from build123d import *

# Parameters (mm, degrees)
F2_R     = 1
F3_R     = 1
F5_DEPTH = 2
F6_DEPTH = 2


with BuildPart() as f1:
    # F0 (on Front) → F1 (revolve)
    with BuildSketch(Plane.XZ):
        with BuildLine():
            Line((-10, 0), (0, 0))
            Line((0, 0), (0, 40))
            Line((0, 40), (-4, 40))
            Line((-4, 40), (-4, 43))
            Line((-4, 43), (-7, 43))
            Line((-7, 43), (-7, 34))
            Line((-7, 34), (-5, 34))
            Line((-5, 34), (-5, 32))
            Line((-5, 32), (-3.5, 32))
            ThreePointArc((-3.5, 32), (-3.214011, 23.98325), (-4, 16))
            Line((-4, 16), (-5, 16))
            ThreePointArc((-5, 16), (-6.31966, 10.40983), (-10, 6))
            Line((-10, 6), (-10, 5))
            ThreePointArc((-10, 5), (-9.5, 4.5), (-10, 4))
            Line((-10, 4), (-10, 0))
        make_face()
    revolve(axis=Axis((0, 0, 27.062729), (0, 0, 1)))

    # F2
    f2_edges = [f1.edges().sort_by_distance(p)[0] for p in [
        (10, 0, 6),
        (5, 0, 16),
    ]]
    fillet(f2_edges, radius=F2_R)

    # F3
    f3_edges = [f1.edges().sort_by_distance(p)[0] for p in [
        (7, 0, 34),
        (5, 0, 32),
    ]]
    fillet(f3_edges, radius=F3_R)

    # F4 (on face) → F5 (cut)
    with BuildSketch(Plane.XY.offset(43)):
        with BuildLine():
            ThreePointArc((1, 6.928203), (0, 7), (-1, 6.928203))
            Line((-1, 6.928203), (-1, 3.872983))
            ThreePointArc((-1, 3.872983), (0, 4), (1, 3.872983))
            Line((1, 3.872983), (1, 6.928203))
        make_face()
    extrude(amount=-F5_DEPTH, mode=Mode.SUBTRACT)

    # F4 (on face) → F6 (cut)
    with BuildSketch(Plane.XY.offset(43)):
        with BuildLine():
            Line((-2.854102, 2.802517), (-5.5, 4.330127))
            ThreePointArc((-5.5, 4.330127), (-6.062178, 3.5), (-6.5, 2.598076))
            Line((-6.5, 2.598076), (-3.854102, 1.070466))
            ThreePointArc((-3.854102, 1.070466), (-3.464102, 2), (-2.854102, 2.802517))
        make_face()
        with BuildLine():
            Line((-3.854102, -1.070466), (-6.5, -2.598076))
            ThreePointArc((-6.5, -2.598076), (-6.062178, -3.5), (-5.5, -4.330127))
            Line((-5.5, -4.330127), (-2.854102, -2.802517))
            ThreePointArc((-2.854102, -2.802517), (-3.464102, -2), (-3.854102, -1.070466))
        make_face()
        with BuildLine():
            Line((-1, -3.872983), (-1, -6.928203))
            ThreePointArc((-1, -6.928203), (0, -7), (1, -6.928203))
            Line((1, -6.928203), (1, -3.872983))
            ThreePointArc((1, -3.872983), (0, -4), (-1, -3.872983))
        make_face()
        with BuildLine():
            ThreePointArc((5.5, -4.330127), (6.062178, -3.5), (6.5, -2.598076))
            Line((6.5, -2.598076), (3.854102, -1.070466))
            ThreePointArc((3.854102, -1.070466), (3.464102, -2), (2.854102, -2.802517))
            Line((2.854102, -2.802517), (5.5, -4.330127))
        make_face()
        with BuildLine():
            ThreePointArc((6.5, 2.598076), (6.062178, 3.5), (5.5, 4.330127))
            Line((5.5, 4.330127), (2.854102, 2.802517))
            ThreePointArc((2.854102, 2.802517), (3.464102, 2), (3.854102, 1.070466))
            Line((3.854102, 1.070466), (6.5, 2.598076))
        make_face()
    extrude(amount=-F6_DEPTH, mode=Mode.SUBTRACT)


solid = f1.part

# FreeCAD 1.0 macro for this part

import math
import FreeCAD as App
import Part
import Sketcher
Q = App.Units.Quantity


def edges_at(feature, points):
    """Names of the edges that pass closest to the given points."""
    edges = feature.Shape.Edges
    near = lambda p: min(range(len(edges)), key=lambda i: edges[i].distToShape(Part.Vertex(*p))[0])
    return sorted({f"Edge{near(p) + 1}" for p in points})

doc = App.newDocument("Part")
body = doc.addObject("PartDesign::Body", "Body")

sketch1 = doc.addObject("Sketcher::SketchObject", "Sketch")
body.addObject(sketch1)
sketch1.AttachmentSupport = (doc.XZ_Plane, [""])
sketch1.MapMode = "FlatFace"
sketch1.addGeometry(Part.LineSegment(App.Vector(-10, 0, 0), App.Vector(0, 0, 0)), False)
sketch1.addGeometry(Part.LineSegment(App.Vector(0, 0, 0), App.Vector(0, 40, 0)), False)
sketch1.addGeometry(Part.LineSegment(App.Vector(0, 40, 0), App.Vector(-4, 40, 0)), False)
sketch1.addGeometry(Part.LineSegment(App.Vector(-4, 40, 0), App.Vector(-4, 43, 0)), False)
sketch1.addGeometry(Part.LineSegment(App.Vector(-4, 43, 0), App.Vector(-7, 43, 0)), False)
sketch1.addGeometry(Part.LineSegment(App.Vector(-7, 43, 0), App.Vector(-7, 34, 0)), False)
sketch1.addGeometry(Part.LineSegment(App.Vector(-7, 34, 0), App.Vector(-5, 34, 0)), False)
sketch1.addGeometry(Part.LineSegment(App.Vector(-5, 34, 0), App.Vector(-5, 32, 0)), False)
sketch1.addGeometry(Part.LineSegment(App.Vector(-5, 32, 0), App.Vector(-3.5, 32, 0)), False)
sketch1.addGeometry(Part.ArcOfCircle(Part.Circle(App.Vector(-63.2, 25.9, 0), App.Vector(0, 0, 1), 60), math.radians(-9.46), math.radians(5.88)), False)
sketch1.addGeometry(Part.LineSegment(App.Vector(-4, 16, 0), App.Vector(-5, 16, 0)), False)
sketch1.addGeometry(Part.ArcOfCircle(Part.Circle(App.Vector(-17.5, 16, 0), App.Vector(0, 0, 1), 12.5), math.radians(-53), math.radians(0)), False)
sketch1.addGeometry(Part.LineSegment(App.Vector(-10, 6, 0), App.Vector(-10, 5, 0)), False)
sketch1.addGeometry(Part.ArcOfCircle(Part.Circle(App.Vector(-10, 4.5, 0), App.Vector(0, 0, 1), 0.5), math.radians(-90), math.radians(90)), False)
sketch1.addGeometry(Part.LineSegment(App.Vector(-10, 4, 0), App.Vector(-10, 0, 0)), False)
sketch1.addConstraint(Sketcher.Constraint("Coincident", 0, 2, 1, 1))
sketch1.addConstraint(Sketcher.Constraint("Coincident", 1, 2, 2, 1))
sketch1.addConstraint(Sketcher.Constraint("Coincident", 2, 2, 3, 1))
sketch1.addConstraint(Sketcher.Constraint("Coincident", 3, 2, 4, 1))
sketch1.addConstraint(Sketcher.Constraint("Coincident", 4, 2, 5, 1))
sketch1.addConstraint(Sketcher.Constraint("Coincident", 5, 2, 6, 1))
sketch1.addConstraint(Sketcher.Constraint("Coincident", 6, 2, 7, 1))
sketch1.addConstraint(Sketcher.Constraint("Coincident", 7, 2, 8, 1))
sketch1.addConstraint(Sketcher.Constraint("Coincident", 8, 2, 9, 2))
sketch1.addConstraint(Sketcher.Constraint("Coincident", 9, 1, 10, 1))
sketch1.addConstraint(Sketcher.Constraint("Coincident", 10, 2, 11, 2))
sketch1.addConstraint(Sketcher.Constraint("Coincident", 11, 1, 12, 1))
sketch1.addConstraint(Sketcher.Constraint("Coincident", 12, 2, 13, 2))
sketch1.addConstraint(Sketcher.Constraint("Coincident", 13, 1, 14, 1))
sketch1.addConstraint(Sketcher.Constraint("Coincident", 14, 2, 0, 1))
sketch1.addConstraint(Sketcher.Constraint("Horizontal", 0))
sketch1.addConstraint(Sketcher.Constraint("Vertical", 1))
sketch1.addConstraint(Sketcher.Constraint("Horizontal", 2))
sketch1.addConstraint(Sketcher.Constraint("Vertical", 3))
sketch1.addConstraint(Sketcher.Constraint("Horizontal", 4))
sketch1.addConstraint(Sketcher.Constraint("Vertical", 5))
sketch1.addConstraint(Sketcher.Constraint("Horizontal", 6))
sketch1.addConstraint(Sketcher.Constraint("Vertical", 7))
sketch1.addConstraint(Sketcher.Constraint("Horizontal", 8))
sketch1.addConstraint(Sketcher.Constraint("Horizontal", 10))
sketch1.addConstraint(Sketcher.Constraint("Vertical", 12))
sketch1.addConstraint(Sketcher.Constraint("Vertical", 14))
sketch1.addConstraint(Sketcher.Constraint("Coincident", 0, 2, -1, 1))
sketch1.addConstraint(Sketcher.Constraint("Horizontal", 11, 3, 9, 1))
sketch1.addConstraint(Sketcher.Constraint("Vertical", 3, 2, 9, 1))
sketch1.addConstraint(Sketcher.Constraint("Vertical", 7, 2, 10, 2))
sketch1.addConstraint(Sketcher.Constraint("Vertical", 13, 3, 11, 1))
sketch1.addConstraint(Sketcher.Constraint("Vertical", 12, 2, 13, 1))
sketch1.addConstraint(Sketcher.Constraint("Equal", 4, 3))
sketch1.addConstraint(Sketcher.Constraint("Equal", 6, 7))
sketch1.addConstraint(Sketcher.Constraint("Equal", 10, 12))
sketch1.addConstraint(Sketcher.Constraint("Equal", 2, 14))
sketch1.addConstraint(Sketcher.Constraint("Radius", 11, 12.499999))
sketch1.addConstraint(Sketcher.Constraint("Radius", 13, 0.5))
sketch1.addConstraint(Sketcher.Constraint("DistanceX", 0, 1, 0, 2, 10.0))
sketch1.addConstraint(Sketcher.Constraint("DistanceX", 2, 2, 2, 1, 4.0))
sketch1.addConstraint(Sketcher.Constraint("DistanceX", 4, 2, 4, 1, 3.0))
sketch1.addConstraint(Sketcher.Constraint("DistanceX", 6, 1, 6, 2, 2.0))
sketch1.addConstraint(Sketcher.Constraint("DistanceY", 1, 1, 1, 2, 40.0))
sketch1.addConstraint(Sketcher.Constraint("DistanceY", 5, 2, 5, 1, 9.0))
sketch1.addConstraint(Sketcher.Constraint("DistanceX", 8, 1, 8, 2, 1.5))
sketch1.addConstraint(Sketcher.Constraint("Radius", 9, 59.999987))
revolution = doc.addObject("PartDesign::Revolution", "Revolution")
body.addObject(revolution)
revolution.Profile = sketch1
revolution.ReferenceAxis = (sketch1, ["V_Axis"])
revolution.Angle = 360
doc.recompute()

fillet = doc.addObject("PartDesign::Fillet", "Fillet")
body.addObject(fillet)
fillet.Base = (revolution, edges_at(revolution, [(10, 0, 6), (5, 0, 16)]))
fillet.Radius = 1
doc.recompute()

fillet2 = doc.addObject("PartDesign::Fillet", "Fillet001")
body.addObject(fillet2)
fillet2.Base = (fillet, edges_at(fillet, [(7, 0, 34), (5, 0, 32)]))
fillet2.Radius = 1

sketch2 = doc.addObject("Sketcher::SketchObject", "Sketch001")
body.addObject(sketch2)
sketch2.AttachmentSupport = (doc.XY_Plane, [""])
sketch2.MapMode = "FlatFace"
sketch2.AttachmentOffset = App.Placement(App.Vector(0, 0, 43), App.Rotation())
sketch2.addGeometry(Part.ArcOfCircle(Part.Circle(App.Vector(0, 0, 0), App.Vector(0, 0, 1), 7), math.radians(81.79), math.radians(98.21)), False)
sketch2.addGeometry(Part.LineSegment(App.Vector(-1, 6.9, 0), App.Vector(-1, 3.9, 0)), False)
sketch2.addGeometry(Part.ArcOfCircle(Part.Circle(App.Vector(0, 0, 0), App.Vector(0, 0, 1), 4), math.radians(76), math.radians(104)), False)
sketch2.addGeometry(Part.LineSegment(App.Vector(1, 3.9, 0), App.Vector(1, 6.9, 0)), False)
sketch2.addConstraint(Sketcher.Constraint("Coincident", 0, 2, 1, 1))
sketch2.addConstraint(Sketcher.Constraint("Coincident", 1, 2, 2, 2))
sketch2.addConstraint(Sketcher.Constraint("Coincident", 2, 1, 3, 1))
sketch2.addConstraint(Sketcher.Constraint("Coincident", 3, 2, 0, 1))
sketch2.addConstraint(Sketcher.Constraint("Vertical", 1))
sketch2.addConstraint(Sketcher.Constraint("Vertical", 3))
sketch2.addConstraint(Sketcher.Constraint("Symmetric", 1, 2, 2, 1, -2))
sketch2.addConstraint(Sketcher.Constraint("PointOnObject", 0, 3, -2))
sketch2.addConstraint(Sketcher.Constraint("DistanceX", 0, 2, -1, 1, 1.0))
sketch2.addConstraint(Sketcher.Constraint("Radius", 2, 3.999989))
sketch2.addConstraint(Sketcher.Constraint("Radius", 0, 6.999978))
sketch2.addConstraint(Sketcher.Constraint("DistanceY", 1, 2, 1, 1, 3.05522))
sketch2.addConstraint(Sketcher.Constraint("DistanceY", -1, 1, 0, 2, 6.928203))
pocket1 = doc.addObject("PartDesign::Pocket", "Pocket")
body.addObject(pocket1)
pocket1.Profile = sketch2
pocket1.Length = 2

sketch3 = doc.addObject("Sketcher::SketchObject", "Sketch002")
body.addObject(sketch3)
sketch3.AttachmentSupport = (doc.XY_Plane, [""])
sketch3.MapMode = "FlatFace"
sketch3.AttachmentOffset = App.Placement(App.Vector(0, 0, 43), App.Rotation())
sketch3.addGeometry(Part.LineSegment(App.Vector(-2.9, 2.8, 0), App.Vector(-5.5, 4.3, 0)), False)
sketch3.addGeometry(Part.ArcOfCircle(Part.Circle(App.Vector(0, 0, 0), App.Vector(0, 0, 1), 7), math.radians(141.79), math.radians(158.21)), False)
sketch3.addGeometry(Part.LineSegment(App.Vector(-6.5, 2.6, 0), App.Vector(-3.9, 1.1, 0)), False)
sketch3.addGeometry(Part.ArcOfCircle(Part.Circle(App.Vector(0, 0, 0), App.Vector(0, 0, 1), 4), math.radians(136), math.radians(164)), False)
sketch3.addGeometry(Part.LineSegment(App.Vector(-3.9, -1.1, 0), App.Vector(-6.5, -2.6, 0)), False)
sketch3.addGeometry(Part.ArcOfCircle(Part.Circle(App.Vector(0, 0, 0), App.Vector(0, 0, 1), 7), math.radians(-158.21), math.radians(-141.79)), False)
sketch3.addGeometry(Part.LineSegment(App.Vector(-5.5, -4.3, 0), App.Vector(-2.9, -2.8, 0)), False)
sketch3.addGeometry(Part.ArcOfCircle(Part.Circle(App.Vector(0, 0, 0), App.Vector(0, 0, 1), 4), math.radians(-164), math.radians(-136)), False)
sketch3.addGeometry(Part.LineSegment(App.Vector(-1, -3.9, 0), App.Vector(-1, -6.9, 0)), False)
sketch3.addGeometry(Part.ArcOfCircle(Part.Circle(App.Vector(0, 0, 0), App.Vector(0, 0, 1), 7), math.radians(-98.21), math.radians(-81.79)), False)
sketch3.addGeometry(Part.LineSegment(App.Vector(1, -6.9, 0), App.Vector(1, -3.9, 0)), False)
sketch3.addGeometry(Part.ArcOfCircle(Part.Circle(App.Vector(0, 0, 0), App.Vector(0, 0, 1), 4), math.radians(-104), math.radians(-76)), False)
sketch3.addGeometry(Part.ArcOfCircle(Part.Circle(App.Vector(0, 0, 0), App.Vector(0, 0, 1), 7), math.radians(-38.21), math.radians(-21.79)), False)
sketch3.addGeometry(Part.LineSegment(App.Vector(6.5, -2.6, 0), App.Vector(3.9, -1.1, 0)), False)
sketch3.addGeometry(Part.ArcOfCircle(Part.Circle(App.Vector(0, 0, 0), App.Vector(0, 0, 1), 4), math.radians(-44), math.radians(-16)), False)
sketch3.addGeometry(Part.LineSegment(App.Vector(2.9, -2.8, 0), App.Vector(5.5, -4.3, 0)), False)
sketch3.addGeometry(Part.ArcOfCircle(Part.Circle(App.Vector(0, 0, 0), App.Vector(0, 0, 1), 7), math.radians(21.79), math.radians(38.21)), False)
sketch3.addGeometry(Part.LineSegment(App.Vector(5.5, 4.3, 0), App.Vector(2.9, 2.8, 0)), False)
sketch3.addGeometry(Part.ArcOfCircle(Part.Circle(App.Vector(0, 0, 0), App.Vector(0, 0, 1), 4), math.radians(16), math.radians(44)), False)
sketch3.addGeometry(Part.LineSegment(App.Vector(3.9, 1.1, 0), App.Vector(6.5, 2.6, 0)), False)
sketch3.addConstraint(Sketcher.Constraint("Coincident", 0, 2, 1, 1))
sketch3.addConstraint(Sketcher.Constraint("Coincident", 1, 2, 2, 1))
sketch3.addConstraint(Sketcher.Constraint("Coincident", 2, 2, 3, 2))
sketch3.addConstraint(Sketcher.Constraint("Coincident", 3, 1, 0, 1))
sketch3.addConstraint(Sketcher.Constraint("Coincident", 4, 2, 5, 1))
sketch3.addConstraint(Sketcher.Constraint("Coincident", 5, 2, 6, 1))
sketch3.addConstraint(Sketcher.Constraint("Coincident", 6, 2, 7, 2))
sketch3.addConstraint(Sketcher.Constraint("Coincident", 7, 1, 4, 1))
sketch3.addConstraint(Sketcher.Constraint("Coincident", 8, 2, 9, 1))
sketch3.addConstraint(Sketcher.Constraint("Coincident", 9, 2, 10, 1))
sketch3.addConstraint(Sketcher.Constraint("Coincident", 10, 2, 11, 2))
sketch3.addConstraint(Sketcher.Constraint("Coincident", 11, 1, 8, 1))
sketch3.addConstraint(Sketcher.Constraint("Coincident", 12, 2, 13, 1))
sketch3.addConstraint(Sketcher.Constraint("Coincident", 13, 2, 14, 2))
sketch3.addConstraint(Sketcher.Constraint("Coincident", 14, 1, 15, 1))
sketch3.addConstraint(Sketcher.Constraint("Coincident", 15, 2, 12, 1))
sketch3.addConstraint(Sketcher.Constraint("Coincident", 16, 2, 17, 1))
sketch3.addConstraint(Sketcher.Constraint("Coincident", 17, 2, 18, 2))
sketch3.addConstraint(Sketcher.Constraint("Coincident", 18, 1, 19, 1))
sketch3.addConstraint(Sketcher.Constraint("Coincident", 19, 2, 16, 1))
sketch3.addConstraint(Sketcher.Constraint("Vertical", 8))
sketch3.addConstraint(Sketcher.Constraint("Vertical", 10))
sketch3.addConstraint(Sketcher.Constraint("Coincident", 3, 3, 1, 3))
sketch3.addConstraint(Sketcher.Constraint("Coincident", 7, 3, 5, 3))
sketch3.addConstraint(Sketcher.Constraint("Coincident", 14, 3, 12, 3))
sketch3.addConstraint(Sketcher.Constraint("Coincident", 18, 3, 16, 3))
sketch3.addConstraint(Sketcher.Constraint("Equal", 1, 5))
sketch3.addConstraint(Sketcher.Constraint("Equal", 3, 7))
sketch3.addConstraint(Sketcher.Constraint("Equal", 7, 11))
sketch3.addConstraint(Sketcher.Constraint("Equal", 5, 12))
sketch3.addConstraint(Sketcher.Constraint("Equal", 11, 14))
sketch3.addConstraint(Sketcher.Constraint("Equal", 12, 16))
sketch3.addConstraint(Sketcher.Constraint("Equal", 14, 18))
sketch3.addConstraint(Sketcher.Constraint("Symmetric", 1, 3, 12, 3, -1, 1))
sketch3.addConstraint(Sketcher.Constraint("Symmetric", 5, 3, 16, 3, -1, 1))
sketch3.addConstraint(Sketcher.Constraint("Symmetric", 5, 3, 12, 3, -2))
sketch3.addConstraint(Sketcher.Constraint("Symmetric", 8, 2, 9, 2, -2))
sketch3.addConstraint(Sketcher.Constraint("PointOnObject", 11, 3, -2))
sketch3.addConstraint(Sketcher.Constraint("Parallel", 0, 2))
sketch3.addConstraint(Sketcher.Constraint("Parallel", 4, 6))
sketch3.addConstraint(Sketcher.Constraint("Parallel", 2, 13))
sketch3.addConstraint(Sketcher.Constraint("Parallel", 13, 15))
sketch3.addConstraint(Sketcher.Constraint("Parallel", 6, 17))
sketch3.addConstraint(Sketcher.Constraint("Parallel", 17, 19))
sketch3.addConstraint(Sketcher.Constraint("Horizontal", 5, 3, 11, 3))
sketch3.addConstraint(Sketcher.Constraint("Horizontal", 4, 2, 12, 2))
sketch3.addConstraint(Sketcher.Constraint("Horizontal", 7, 1, 13, 2))
sketch3.addConstraint(Sketcher.Constraint("Horizontal", 6, 2, 14, 1))
sketch3.addConstraint(Sketcher.Constraint("Horizontal", 0, 2, 16, 2))
sketch3.addConstraint(Sketcher.Constraint("Horizontal", 2, 2, 18, 1))
sketch3.addConstraint(Sketcher.Constraint("Vertical", 1, 2, 4, 2))
sketch3.addConstraint(Sketcher.Constraint("Vertical", 0, 2, 5, 2))
sketch3.addConstraint(Sketcher.Constraint("Equal", 0, 2))
sketch3.addConstraint(Sketcher.Constraint("Angle", 0, Q("149.999999 deg")))
sketch3.addConstraint(Sketcher.Constraint("DistanceX", 8, 2, -1, 1, 1.0))
sketch3.addConstraint(Sketcher.Constraint("DistanceX", 1, 2, 0, 2, 1.0))
sketch3.addConstraint(Sketcher.Constraint("DistanceX", 0, 2, -1, 1, 5.5))
sketch3.addConstraint(Sketcher.Constraint("Radius", 1, 6.999981))
sketch3.addConstraint(Sketcher.Constraint("Radius", 3, 3.999989))
sketch3.addConstraint(Sketcher.Constraint("Radius", 9, 6.999978))
sketch3.addConstraint(Sketcher.Constraint("DistanceY", 8, 2, 8, 1, 3.05522))
sketch3.addConstraint(Sketcher.Constraint("DistanceY", 7, 3, 1, 2, 2.598082))
pocket2 = doc.addObject("PartDesign::Pocket", "Pocket001")
body.addObject(pocket2)
pocket2.Profile = sketch3
pocket2.Length = 2

doc.recompute()
